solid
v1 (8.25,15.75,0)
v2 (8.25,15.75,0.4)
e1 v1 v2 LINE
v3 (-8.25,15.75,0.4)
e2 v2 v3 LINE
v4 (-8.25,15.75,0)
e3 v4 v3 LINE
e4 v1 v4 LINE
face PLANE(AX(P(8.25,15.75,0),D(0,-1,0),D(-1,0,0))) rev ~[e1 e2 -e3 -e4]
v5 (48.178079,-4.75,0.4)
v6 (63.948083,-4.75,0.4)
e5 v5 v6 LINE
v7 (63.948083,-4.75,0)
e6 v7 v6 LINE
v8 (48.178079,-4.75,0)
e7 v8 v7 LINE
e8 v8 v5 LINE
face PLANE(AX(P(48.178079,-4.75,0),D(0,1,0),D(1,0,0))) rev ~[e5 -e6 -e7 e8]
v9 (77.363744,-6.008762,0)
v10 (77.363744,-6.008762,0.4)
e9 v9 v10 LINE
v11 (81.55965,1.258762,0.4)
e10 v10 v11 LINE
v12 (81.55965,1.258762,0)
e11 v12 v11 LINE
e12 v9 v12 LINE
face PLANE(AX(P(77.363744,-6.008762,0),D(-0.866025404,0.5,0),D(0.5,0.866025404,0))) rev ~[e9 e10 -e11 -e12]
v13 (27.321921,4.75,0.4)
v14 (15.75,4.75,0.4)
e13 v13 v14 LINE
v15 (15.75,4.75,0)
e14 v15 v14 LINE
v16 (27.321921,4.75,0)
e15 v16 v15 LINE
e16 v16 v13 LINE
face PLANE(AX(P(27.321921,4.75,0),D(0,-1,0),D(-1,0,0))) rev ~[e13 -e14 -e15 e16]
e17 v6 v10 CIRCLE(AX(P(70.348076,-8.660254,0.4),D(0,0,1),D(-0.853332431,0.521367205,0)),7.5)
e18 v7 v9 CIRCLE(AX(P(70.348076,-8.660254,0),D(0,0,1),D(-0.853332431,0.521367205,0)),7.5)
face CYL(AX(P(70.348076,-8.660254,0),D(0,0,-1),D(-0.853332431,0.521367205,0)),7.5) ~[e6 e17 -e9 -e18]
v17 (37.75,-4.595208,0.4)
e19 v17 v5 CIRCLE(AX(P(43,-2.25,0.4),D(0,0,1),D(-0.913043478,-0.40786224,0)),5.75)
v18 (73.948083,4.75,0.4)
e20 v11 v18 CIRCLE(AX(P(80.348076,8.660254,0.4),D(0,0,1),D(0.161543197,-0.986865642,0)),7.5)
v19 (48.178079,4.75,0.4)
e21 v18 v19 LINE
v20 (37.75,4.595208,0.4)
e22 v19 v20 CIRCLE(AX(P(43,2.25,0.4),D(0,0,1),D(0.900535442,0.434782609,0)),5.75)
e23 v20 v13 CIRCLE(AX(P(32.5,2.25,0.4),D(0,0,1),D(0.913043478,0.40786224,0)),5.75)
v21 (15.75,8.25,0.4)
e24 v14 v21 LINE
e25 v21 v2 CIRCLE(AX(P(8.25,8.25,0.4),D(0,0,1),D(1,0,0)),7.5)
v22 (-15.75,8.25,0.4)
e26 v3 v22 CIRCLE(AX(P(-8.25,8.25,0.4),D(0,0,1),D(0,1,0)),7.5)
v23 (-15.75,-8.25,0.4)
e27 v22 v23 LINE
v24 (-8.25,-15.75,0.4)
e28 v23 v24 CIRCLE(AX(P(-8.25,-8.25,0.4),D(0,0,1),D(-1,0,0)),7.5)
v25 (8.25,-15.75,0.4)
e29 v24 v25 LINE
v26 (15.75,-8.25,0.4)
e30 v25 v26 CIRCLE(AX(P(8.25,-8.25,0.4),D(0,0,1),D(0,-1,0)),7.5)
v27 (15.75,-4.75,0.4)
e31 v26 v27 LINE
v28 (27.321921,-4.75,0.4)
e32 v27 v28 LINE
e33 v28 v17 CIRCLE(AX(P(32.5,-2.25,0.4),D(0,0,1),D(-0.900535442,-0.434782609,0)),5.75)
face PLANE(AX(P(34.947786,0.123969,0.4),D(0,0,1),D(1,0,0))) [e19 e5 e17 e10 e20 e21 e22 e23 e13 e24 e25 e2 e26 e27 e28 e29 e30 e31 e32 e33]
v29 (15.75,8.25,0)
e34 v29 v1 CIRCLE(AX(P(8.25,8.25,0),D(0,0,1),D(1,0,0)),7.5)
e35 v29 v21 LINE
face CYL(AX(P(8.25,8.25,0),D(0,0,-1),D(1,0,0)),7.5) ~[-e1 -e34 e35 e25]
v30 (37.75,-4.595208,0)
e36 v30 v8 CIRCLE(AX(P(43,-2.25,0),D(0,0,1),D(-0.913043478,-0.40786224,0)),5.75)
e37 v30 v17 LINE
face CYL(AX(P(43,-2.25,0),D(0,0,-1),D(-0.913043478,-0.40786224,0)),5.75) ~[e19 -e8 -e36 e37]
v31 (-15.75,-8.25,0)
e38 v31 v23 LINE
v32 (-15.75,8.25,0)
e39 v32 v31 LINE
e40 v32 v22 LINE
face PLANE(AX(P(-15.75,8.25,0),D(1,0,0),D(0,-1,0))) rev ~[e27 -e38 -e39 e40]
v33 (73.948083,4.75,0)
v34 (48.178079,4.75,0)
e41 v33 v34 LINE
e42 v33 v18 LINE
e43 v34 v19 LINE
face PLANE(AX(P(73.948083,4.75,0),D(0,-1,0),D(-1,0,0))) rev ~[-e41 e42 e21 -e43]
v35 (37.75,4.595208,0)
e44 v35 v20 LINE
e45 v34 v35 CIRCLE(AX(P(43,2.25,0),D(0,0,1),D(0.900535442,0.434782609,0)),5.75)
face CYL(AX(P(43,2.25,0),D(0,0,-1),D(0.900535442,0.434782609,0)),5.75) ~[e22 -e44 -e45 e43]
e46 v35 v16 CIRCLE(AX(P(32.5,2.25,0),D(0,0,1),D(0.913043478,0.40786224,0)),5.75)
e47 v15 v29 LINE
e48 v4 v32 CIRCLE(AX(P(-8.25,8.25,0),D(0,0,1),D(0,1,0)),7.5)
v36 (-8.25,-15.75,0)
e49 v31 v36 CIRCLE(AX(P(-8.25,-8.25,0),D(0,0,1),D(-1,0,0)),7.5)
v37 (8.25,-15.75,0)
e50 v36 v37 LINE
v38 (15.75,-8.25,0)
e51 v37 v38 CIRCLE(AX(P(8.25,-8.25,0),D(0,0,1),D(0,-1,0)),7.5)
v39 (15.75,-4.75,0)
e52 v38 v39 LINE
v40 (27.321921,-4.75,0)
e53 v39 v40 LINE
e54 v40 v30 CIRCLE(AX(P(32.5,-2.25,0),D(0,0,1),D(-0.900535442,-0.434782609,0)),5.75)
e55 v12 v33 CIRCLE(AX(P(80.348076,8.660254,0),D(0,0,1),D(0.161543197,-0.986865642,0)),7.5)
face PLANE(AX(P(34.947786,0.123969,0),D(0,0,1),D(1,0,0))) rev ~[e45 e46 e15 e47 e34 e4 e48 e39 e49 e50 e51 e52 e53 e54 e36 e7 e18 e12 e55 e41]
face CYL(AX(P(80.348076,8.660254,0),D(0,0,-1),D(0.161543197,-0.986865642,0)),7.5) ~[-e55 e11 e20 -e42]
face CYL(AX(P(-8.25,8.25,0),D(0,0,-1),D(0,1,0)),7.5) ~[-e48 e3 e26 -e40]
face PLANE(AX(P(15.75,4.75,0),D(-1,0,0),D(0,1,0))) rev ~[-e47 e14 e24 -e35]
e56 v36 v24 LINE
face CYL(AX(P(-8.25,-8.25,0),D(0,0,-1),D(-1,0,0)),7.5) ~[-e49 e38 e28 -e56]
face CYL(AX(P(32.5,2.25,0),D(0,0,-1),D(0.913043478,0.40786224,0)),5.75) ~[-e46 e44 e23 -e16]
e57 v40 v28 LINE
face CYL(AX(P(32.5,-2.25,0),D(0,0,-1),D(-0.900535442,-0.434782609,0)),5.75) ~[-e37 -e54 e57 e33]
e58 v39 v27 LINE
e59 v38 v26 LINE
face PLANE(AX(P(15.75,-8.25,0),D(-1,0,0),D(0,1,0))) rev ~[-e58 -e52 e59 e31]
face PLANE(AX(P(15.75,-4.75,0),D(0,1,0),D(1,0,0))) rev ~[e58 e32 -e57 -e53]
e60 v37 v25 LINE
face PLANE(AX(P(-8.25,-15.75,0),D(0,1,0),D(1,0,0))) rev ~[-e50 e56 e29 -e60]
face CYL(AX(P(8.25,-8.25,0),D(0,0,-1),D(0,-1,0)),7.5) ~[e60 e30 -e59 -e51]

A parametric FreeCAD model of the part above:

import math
import FreeCAD as App
import Part
import Sketcher
Q = App.Units.Quantity

doc = App.newDocument("Part")
params = doc.addObject("Spreadsheet::Sheet", "Params")
for row, (alias, value) in enumerate([
    ("sketch1_radius", "7.5 mm"),
    ("sketch1_radius2", "5.75 mm"),
    ("sketch1_width", "16.5 mm"),
    ("sketch1_height", "3.5 mm"),
    ("pad1_length", "0.4 mm"),
], start=1):
    params.set(f"A{row}", alias)
    params.set(f"B{row}", "=" + value)
    params.setAlias(f"B{row}", alias)

body = doc.addObject("PartDesign::Body", "Body")

# Sketch on XY plane
sketch1 = body.newObject("Sketcher::SketchObject", "Sketch")
sketch1.AttachmentSupport = (doc.getObject("XY_Plane"), [""])
sketch1.MapMode = "FlatFace"
sketch1.addGeometry([
    Part.LineSegment(App.Vector(15.8, 4.8, 0), App.Vector(15.8, 8.2, 0)),  # 0
    Part.ArcOfCircle(Part.Circle(App.Vector(8.2, 8.2, 0), App.Vector(0, 0, 1), 7.5), math.radians(0), math.radians(90)),  # 1
    Part.LineSegment(App.Vector(8.2, 15.8, 0), App.Vector(-8.2, 15.8, 0)),  # 2
    Part.ArcOfCircle(Part.Circle(App.Vector(-8.2, 8.2, 0), App.Vector(0, 0, 1), 7.5), math.radians(90), math.radians(180)),  # 3
    Part.LineSegment(App.Vector(-15.8, 8.2, 0), App.Vector(-15.8, -8.2, 0)),  # 4
    Part.ArcOfCircle(Part.Circle(App.Vector(-8.2, -8.2, 0), App.Vector(0, 0, 1), 7.5), math.radians(180), math.radians(270)),  # 5
    Part.LineSegment(App.Vector(-8.2, -15.8, 0), App.Vector(8.2, -15.8, 0)),  # 6
    Part.ArcOfCircle(Part.Circle(App.Vector(8.2, -8.2, 0), App.Vector(0, 0, 1), 7.5), math.radians(-90), math.radians(0)),  # 7
    Part.LineSegment(App.Vector(15.8, -8.2, 0), App.Vector(15.8, -4.8, 0)),  # 8
    Part.LineSegment(App.Vector(15.8, -4.8, 0), App.Vector(27.3, -4.8, 0)),  # 9
    Part.ArcOfCircle(Part.Circle(App.Vector(32.5, -2.2, 0), App.Vector(0, 0, 1), 5.8), math.radians(-154), math.radians(-24)),  # 10
    Part.ArcOfCircle(Part.Circle(App.Vector(43, -2.2, 0), App.Vector(0, 0, 1), 5.8), math.radians(-156), math.radians(-26)),  # 11
    Part.LineSegment(App.Vector(48.2, -4.8, 0), App.Vector(63.9, -4.8, 0)),  # 12
    Part.ArcOfCircle(Part.Circle(App.Vector(70.3, -8.7, 0), App.Vector(0, 0, 1), 7.5), math.radians(149), math.radians(381)),  # 13
    Part.LineSegment(App.Vector(77.4, -6, 0), App.Vector(81.6, 1.3, 0)),  # 14
    Part.ArcOfCircle(Part.Circle(App.Vector(80.3, 8.7, 0), App.Vector(0, 0, 1), 7.5), math.radians(-81), math.radians(211)),  # 15
    Part.LineSegment(App.Vector(73.9, 4.8, 0), App.Vector(48.2, 4.8, 0)),  # 16
    Part.ArcOfCircle(Part.Circle(App.Vector(43, 2.2, 0), App.Vector(0, 0, 1), 5.8), math.radians(26), math.radians(156)),  # 17
    Part.ArcOfCircle(Part.Circle(App.Vector(32.5, 2.2, 0), App.Vector(0, 0, 1), 5.8), math.radians(24), math.radians(154)),  # 18
    Part.LineSegment(App.Vector(27.3, 4.8, 0), App.Vector(15.8, 4.8, 0)),  # 19
], False)
sketch1.addConstraint([
    Sketcher.Constraint("Tangent", 0, 2, 1, 1),
    Sketcher.Constraint("Tangent", 1, 2, 2, 1),
    Sketcher.Constraint("Tangent", 2, 2, 3, 1),
    Sketcher.Constraint("Tangent", 3, 2, 4, 1),
    Sketcher.Constraint("Tangent", 4, 2, 5, 1),
    Sketcher.Constraint("Tangent", 5, 2, 6, 1),
    Sketcher.Constraint("Tangent", 6, 2, 7, 1),
    Sketcher.Constraint("Tangent", 7, 2, 8, 1),
    Sketcher.Constraint("Coincident", 8, 2, 9, 1),
    Sketcher.Constraint("Coincident", 9, 2, 10, 1),
    Sketcher.Constraint("Coincident", 10, 2, 11, 1),
    Sketcher.Constraint("Coincident", 11, 2, 12, 1),
    Sketcher.Constraint("Coincident", 12, 2, 13, 1),
    Sketcher.Constraint("Coincident", 13, 2, 14, 1),
    Sketcher.Constraint("Coincident", 14, 2, 15, 1),
    Sketcher.Constraint("Coincident", 15, 2, 16, 1),
    Sketcher.Constraint("Coincident", 16, 2, 17, 1),
    Sketcher.Constraint("Coincident", 17, 2, 18, 1),
    Sketcher.Constraint("Coincident", 18, 2, 19, 1),
    Sketcher.Constraint("Coincident", 19, 2, 0, 1),
    Sketcher.Constraint("Vertical", 0),
    Sketcher.Constraint("Horizontal", 2),
    Sketcher.Constraint("Vertical", 4),
    Sketcher.Constraint("Horizontal", 6),
    Sketcher.Constraint("Vertical", 8),
    Sketcher.Constraint("Horizontal", 9),
    Sketcher.Constraint("Horizontal", 12),
    Sketcher.Constraint("Horizontal", 16),
    Sketcher.Constraint("Horizontal", 19),
    Sketcher.Constraint("Equal", 1, 3),
    Sketcher.Constraint("Equal", 3, 5),
    Sketcher.Constraint("Equal", 5, 7),
    Sketcher.Constraint("Equal", 10, 11),
    Sketcher.Constraint("Equal", 7, 13),
    Sketcher.Constraint("Equal", 13, 15),
    Sketcher.Constraint("Equal", 11, 17),
    Sketcher.Constraint("Equal", 17, 18),
    Sketcher.Constraint("Symmetric", 1, 3, 5, 3, -1, 1),
    Sketcher.Constraint("Symmetric", 11, 3, 17, 3, -1),
    Sketcher.Constraint("Symmetric", 10, 3, 18, 3, -1),
    Sketcher.Constraint("Symmetric", 8, 2, 19, 2, -1),
    Sketcher.Constraint("Horizontal", 10, 3, 11, 3),
    Sketcher.Constraint("Horizontal", 9, 2, 11, 2),
    Sketcher.Constraint("Horizontal", 16, 2, 18, 2),
    Sketcher.Constraint("Equal", 6, 4),
    Sketcher.Constraint("Radius", 1, 7.5),
    Sketcher.Constraint("Angle", 14, Q("60 deg")),
    Sketcher.Constraint("Radius", 10, 5.75),
    Sketcher.Constraint("DistanceX", 2, 2, 2, 1, 16.5),
    Sketcher.Constraint("DistanceY", 0, 1, 0, 2, 3.5),
    Sketcher.Constraint("DistanceX", -1, 1, 11, 3, 43.0),
    Sketcher.Constraint("DistanceY", 7, 3, 10, 3, 6.0),
    Sketcher.Constraint("DistanceX", 13, 3, 15, 3, 10.0),
    Sketcher.Constraint("DistanceX", 12, 2, 15, 2, 10.0),
    Sketcher.Constraint("DistanceX", -1, 1, 10, 3, 32.5),
    Sketcher.Constraint("DistanceX", 12, 1, 12, 2, 15.770004),
    Sketcher.Constraint("DistanceY", 13, 2, -1, 1, 6.008762),
    Sketcher.Constraint("DistanceX", -1, 1, 14, 2, 81.55965),
])
sketch1.setExpression("Constraints[45]", "Params.sketch1_radius")
sketch1.setExpression("Constraints[47]", "Params.sketch1_radius2")
sketch1.setExpression("Constraints[48]", "Params.sketch1_width")
sketch1.setExpression("Constraints[49]", "Params.sketch1_height")
pad1 = body.newObject("PartDesign::Pad", "Pad")
pad1.Profile = sketch1
pad1.setExpression("Length", "Params.pad1_length")

doc.recompute()
